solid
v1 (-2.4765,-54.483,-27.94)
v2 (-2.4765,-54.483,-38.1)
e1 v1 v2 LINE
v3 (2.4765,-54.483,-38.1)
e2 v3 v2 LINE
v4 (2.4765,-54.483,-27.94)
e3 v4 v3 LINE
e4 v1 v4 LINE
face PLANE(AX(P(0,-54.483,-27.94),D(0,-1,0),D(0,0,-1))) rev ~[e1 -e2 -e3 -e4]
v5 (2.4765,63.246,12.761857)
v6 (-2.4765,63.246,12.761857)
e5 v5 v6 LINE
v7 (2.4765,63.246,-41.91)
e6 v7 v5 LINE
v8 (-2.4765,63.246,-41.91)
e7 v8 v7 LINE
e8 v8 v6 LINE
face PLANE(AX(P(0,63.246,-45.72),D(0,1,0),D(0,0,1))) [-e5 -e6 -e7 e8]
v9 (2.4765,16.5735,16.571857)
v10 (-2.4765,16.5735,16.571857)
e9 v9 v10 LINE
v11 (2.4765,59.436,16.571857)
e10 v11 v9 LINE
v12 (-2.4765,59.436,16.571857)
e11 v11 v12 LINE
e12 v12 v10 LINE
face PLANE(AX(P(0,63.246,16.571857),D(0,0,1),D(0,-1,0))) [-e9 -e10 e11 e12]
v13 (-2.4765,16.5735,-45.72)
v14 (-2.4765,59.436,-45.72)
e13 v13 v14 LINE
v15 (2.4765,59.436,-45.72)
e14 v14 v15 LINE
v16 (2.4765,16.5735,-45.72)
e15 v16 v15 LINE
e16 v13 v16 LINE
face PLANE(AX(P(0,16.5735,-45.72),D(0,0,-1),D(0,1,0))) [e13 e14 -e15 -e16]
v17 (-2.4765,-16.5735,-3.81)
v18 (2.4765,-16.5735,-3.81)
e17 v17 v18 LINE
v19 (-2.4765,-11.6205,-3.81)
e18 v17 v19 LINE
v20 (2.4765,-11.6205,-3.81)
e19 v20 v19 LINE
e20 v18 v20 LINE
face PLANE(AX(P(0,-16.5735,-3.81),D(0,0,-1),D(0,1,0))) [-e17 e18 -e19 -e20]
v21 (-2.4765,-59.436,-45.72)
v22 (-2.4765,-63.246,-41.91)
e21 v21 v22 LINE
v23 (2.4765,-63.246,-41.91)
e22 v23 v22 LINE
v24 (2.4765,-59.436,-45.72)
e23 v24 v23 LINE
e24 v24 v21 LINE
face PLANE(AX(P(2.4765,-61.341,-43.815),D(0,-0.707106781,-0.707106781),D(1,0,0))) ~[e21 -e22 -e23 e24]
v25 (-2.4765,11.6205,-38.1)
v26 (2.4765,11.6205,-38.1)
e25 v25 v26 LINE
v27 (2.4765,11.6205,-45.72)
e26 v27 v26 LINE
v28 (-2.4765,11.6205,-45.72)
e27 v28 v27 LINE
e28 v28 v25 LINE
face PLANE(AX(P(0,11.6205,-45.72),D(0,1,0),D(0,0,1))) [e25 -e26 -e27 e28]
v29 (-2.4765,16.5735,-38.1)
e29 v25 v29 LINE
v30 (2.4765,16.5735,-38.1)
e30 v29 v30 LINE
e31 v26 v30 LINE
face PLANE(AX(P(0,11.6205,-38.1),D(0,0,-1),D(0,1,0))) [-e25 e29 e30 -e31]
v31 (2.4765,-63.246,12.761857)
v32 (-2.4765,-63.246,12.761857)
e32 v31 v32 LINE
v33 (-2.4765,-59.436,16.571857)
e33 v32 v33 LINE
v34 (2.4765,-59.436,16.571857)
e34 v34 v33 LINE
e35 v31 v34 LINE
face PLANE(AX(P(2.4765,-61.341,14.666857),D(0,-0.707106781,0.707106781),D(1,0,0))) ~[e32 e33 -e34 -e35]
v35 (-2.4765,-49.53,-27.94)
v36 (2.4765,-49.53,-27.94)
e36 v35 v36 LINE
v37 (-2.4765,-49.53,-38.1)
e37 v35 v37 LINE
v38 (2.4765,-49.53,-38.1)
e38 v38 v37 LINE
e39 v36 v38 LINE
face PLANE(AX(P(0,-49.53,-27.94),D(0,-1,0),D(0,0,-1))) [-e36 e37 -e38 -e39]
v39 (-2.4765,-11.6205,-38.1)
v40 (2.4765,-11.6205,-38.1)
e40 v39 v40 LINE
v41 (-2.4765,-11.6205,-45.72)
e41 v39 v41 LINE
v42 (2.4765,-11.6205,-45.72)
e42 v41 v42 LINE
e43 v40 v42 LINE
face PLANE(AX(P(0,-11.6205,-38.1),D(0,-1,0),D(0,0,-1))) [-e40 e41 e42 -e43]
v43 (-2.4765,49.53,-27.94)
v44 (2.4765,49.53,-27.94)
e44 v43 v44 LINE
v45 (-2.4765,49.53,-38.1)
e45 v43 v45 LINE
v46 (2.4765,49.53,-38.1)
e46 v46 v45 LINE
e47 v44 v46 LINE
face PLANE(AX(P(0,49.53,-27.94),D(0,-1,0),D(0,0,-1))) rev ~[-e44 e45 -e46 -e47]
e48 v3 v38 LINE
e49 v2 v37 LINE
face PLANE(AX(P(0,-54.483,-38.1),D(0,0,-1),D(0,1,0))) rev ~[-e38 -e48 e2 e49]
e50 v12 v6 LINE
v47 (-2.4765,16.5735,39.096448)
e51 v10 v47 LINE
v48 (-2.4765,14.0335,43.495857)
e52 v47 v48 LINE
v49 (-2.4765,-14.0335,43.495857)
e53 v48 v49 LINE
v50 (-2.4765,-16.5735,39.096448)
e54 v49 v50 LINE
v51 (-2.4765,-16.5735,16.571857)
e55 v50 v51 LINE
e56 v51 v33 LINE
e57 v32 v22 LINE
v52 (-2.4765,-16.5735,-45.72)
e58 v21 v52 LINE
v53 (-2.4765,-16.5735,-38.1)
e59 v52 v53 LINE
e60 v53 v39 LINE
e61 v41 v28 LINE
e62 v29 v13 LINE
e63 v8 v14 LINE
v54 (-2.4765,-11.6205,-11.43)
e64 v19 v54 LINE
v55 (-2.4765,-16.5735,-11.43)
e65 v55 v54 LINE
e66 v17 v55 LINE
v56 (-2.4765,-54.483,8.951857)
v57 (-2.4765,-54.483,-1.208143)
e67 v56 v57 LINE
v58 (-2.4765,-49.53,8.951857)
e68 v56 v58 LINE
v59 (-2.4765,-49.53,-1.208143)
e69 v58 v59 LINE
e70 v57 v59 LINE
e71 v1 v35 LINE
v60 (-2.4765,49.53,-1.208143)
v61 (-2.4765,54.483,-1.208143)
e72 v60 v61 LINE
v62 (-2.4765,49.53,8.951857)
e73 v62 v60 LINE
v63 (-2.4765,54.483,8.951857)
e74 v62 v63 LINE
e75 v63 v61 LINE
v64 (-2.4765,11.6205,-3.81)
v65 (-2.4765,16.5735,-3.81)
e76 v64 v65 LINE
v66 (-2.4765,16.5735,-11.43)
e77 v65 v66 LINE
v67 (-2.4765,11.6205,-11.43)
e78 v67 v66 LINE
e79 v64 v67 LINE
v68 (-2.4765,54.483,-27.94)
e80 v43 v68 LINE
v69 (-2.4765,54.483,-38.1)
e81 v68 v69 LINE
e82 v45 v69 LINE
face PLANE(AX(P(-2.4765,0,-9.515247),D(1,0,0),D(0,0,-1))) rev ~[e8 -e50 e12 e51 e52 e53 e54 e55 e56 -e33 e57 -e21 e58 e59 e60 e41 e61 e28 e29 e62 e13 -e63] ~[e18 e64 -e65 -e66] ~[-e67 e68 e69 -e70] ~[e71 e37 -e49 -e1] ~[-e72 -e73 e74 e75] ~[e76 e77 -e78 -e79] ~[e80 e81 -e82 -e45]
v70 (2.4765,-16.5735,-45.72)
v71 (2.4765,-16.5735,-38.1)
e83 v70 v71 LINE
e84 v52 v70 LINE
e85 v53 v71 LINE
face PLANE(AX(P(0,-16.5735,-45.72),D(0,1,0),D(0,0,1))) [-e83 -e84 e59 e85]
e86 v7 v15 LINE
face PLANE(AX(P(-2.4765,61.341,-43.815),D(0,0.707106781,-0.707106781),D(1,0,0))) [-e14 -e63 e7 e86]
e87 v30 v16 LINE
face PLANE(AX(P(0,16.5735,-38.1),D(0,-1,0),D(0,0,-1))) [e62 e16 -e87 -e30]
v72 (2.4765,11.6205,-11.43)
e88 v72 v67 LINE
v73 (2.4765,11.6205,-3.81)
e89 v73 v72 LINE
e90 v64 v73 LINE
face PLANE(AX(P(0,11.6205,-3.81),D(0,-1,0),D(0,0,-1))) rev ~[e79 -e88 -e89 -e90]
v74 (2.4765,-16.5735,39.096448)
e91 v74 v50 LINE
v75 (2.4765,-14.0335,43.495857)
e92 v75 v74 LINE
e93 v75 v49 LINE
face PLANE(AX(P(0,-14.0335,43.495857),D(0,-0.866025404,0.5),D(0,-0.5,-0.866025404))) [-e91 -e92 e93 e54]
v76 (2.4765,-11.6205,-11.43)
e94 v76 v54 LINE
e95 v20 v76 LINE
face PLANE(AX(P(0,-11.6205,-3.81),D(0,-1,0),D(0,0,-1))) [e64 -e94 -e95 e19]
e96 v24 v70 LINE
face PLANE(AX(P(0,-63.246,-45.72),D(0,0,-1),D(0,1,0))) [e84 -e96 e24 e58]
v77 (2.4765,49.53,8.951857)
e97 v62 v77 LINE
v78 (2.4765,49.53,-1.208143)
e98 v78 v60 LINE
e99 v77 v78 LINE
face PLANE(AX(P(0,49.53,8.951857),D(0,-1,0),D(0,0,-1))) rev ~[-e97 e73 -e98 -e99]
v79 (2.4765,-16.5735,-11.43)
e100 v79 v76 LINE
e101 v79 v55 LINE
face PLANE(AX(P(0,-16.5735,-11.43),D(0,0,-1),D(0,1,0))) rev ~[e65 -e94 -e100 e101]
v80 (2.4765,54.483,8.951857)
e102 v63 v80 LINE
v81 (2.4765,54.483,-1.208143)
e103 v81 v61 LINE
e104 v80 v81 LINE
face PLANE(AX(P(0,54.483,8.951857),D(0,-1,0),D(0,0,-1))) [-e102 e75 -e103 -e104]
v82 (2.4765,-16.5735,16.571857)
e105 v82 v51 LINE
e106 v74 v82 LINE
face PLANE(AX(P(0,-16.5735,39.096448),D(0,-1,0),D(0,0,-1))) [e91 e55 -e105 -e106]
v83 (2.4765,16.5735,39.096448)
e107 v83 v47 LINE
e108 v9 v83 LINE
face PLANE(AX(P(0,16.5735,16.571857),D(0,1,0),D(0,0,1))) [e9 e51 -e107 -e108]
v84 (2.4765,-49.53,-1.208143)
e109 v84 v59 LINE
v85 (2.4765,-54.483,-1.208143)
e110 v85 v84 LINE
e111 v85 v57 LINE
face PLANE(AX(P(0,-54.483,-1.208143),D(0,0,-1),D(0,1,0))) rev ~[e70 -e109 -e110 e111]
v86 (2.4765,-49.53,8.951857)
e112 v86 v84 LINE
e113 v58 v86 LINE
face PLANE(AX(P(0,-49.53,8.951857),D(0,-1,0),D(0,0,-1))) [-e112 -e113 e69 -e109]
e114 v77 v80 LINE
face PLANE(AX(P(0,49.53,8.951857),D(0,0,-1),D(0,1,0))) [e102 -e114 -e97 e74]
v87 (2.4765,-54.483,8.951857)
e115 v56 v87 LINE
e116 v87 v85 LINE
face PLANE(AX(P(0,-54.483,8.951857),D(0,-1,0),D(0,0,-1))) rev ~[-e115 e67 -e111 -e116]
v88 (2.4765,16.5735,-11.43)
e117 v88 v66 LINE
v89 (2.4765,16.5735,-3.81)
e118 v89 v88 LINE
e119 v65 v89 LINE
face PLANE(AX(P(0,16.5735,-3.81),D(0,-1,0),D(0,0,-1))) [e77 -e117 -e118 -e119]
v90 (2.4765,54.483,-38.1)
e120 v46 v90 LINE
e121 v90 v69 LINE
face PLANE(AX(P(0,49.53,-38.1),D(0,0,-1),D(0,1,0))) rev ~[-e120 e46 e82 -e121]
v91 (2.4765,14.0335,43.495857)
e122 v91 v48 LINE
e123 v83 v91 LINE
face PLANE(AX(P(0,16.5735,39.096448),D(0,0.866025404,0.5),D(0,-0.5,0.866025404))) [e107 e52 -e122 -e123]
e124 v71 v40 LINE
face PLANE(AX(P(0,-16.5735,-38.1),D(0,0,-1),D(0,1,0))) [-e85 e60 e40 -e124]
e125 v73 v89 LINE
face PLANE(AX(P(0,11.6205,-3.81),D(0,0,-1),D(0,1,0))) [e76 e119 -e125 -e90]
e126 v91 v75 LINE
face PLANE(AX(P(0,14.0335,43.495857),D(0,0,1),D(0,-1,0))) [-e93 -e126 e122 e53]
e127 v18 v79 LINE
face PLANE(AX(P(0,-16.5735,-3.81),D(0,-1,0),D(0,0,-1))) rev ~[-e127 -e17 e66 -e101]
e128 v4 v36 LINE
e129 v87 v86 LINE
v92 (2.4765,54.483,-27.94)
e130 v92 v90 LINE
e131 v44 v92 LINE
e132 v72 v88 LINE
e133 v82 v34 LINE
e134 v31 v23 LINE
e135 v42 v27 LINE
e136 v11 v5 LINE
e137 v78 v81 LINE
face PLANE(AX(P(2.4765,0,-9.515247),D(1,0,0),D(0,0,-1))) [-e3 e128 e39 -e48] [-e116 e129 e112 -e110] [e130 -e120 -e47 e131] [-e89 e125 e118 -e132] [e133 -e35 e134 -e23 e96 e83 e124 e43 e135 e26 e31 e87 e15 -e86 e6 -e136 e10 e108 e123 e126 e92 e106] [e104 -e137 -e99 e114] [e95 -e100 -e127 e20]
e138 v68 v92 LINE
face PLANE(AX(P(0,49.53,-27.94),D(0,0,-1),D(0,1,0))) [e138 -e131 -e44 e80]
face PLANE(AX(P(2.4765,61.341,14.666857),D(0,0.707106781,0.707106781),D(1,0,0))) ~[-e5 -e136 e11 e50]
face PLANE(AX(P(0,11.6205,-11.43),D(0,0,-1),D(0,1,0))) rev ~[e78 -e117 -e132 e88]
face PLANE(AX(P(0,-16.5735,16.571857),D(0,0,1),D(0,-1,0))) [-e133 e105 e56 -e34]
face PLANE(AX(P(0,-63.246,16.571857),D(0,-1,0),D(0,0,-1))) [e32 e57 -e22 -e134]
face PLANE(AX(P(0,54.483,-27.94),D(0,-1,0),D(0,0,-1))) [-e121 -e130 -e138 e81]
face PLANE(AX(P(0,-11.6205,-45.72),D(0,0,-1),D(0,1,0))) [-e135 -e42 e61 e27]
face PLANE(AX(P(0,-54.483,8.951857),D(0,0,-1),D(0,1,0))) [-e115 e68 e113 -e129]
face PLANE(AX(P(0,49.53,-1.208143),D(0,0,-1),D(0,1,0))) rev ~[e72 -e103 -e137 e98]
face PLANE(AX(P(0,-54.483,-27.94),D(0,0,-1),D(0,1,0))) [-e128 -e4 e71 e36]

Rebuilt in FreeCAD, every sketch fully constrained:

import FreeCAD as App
import Part
import Sketcher

V = App.Vector
Q = App.Units.Quantity


def edges_at(feature, points):
    """Names of the edges that pass closest to the given points."""
    edges = feature.Shape.Edges
    near = lambda p: min(range(len(edges)), key=lambda i: edges[i].distToShape(Part.Vertex(*p))[0])
    return sorted({f"Edge{near(p) + 1}" for p in points})


def add_polygon(sketch, points):
    """Adds a closed chain of lines whose ends are joined by coincident constraints."""
    first, n = sketch.GeometryCount, len(points)
    for a, b in zip(points, points[1:] + points[:1]):
        sketch.addGeometry(Part.LineSegment(App.Vector(*a, 0), App.Vector(*b, 0)), False)
    for i in range(n):
        sketch.addConstraint(Sketcher.Constraint("Coincident", first + i, 2, first + (i + 1) % n, 1))

doc = App.newDocument("Part")
body = doc.addObject("PartDesign::Body", "Body")

# Sketch on YZ plane
sketch1 = doc.addObject("Sketcher::SketchObject", "Sketch")
body.addObject(sketch1)
sketch1.AttachmentSupport = (doc.YZ_Plane, [""])
sketch1.MapMode = "FlatFace"
add_polygon(sketch1, [(-63.2, -45.7), (-16.6, -45.7), (-16.6, -38.1), (-11.6, -38.1), (-11.6, -45.7), (11.6, -45.7), (11.6, -38.1), (16.6, -38.1), (16.6, -45.7), (63.2, -45.7), (63.2, 16.6), (16.6, 16.6), (16.6, 39.1), (14, 43.5), (-14, 43.5), (-16.6, 39.1), (-16.6, 16.6), (-63.2, 16.6)])  # lines 0-17
add_polygon(sketch1, [(-54.5, -1.2), (-54.5, 9), (-49.5, 9), (-49.5, -1.2)])  # lines 18-21
add_polygon(sketch1, [(-16.6, -11.4), (-16.6, -3.8), (-11.6, -3.8), (-11.6, -11.4)])  # lines 22-25
add_polygon(sketch1, [(-54.5, -38.1), (-54.5, -27.9), (-49.5, -27.9), (-49.5, -38.1)])  # lines 26-29
add_polygon(sketch1, [(11.6, -11.4), (11.6, -3.8), (16.6, -3.8), (16.6, -11.4)])  # lines 30-33
add_polygon(sketch1, [(49.5, -1.2), (49.5, 9), (54.5, 9), (54.5, -1.2)])  # lines 34-37
add_polygon(sketch1, [(49.5, -38.1), (49.5, -27.9), (54.5, -27.9), (54.5, -38.1)])  # lines 38-41
sketch1.addConstraint([
    Sketcher.Constraint("Horizontal", 0),
    Sketcher.Constraint("Vertical", 1),
    Sketcher.Constraint("Horizontal", 2),
    Sketcher.Constraint("Vertical", 3),
    Sketcher.Constraint("Horizontal", 4),
    Sketcher.Constraint("Vertical", 5),
    Sketcher.Constraint("Horizontal", 6),
    Sketcher.Constraint("Vertical", 7),
    Sketcher.Constraint("Horizontal", 8),
    Sketcher.Constraint("Vertical", 9),
    Sketcher.Constraint("Horizontal", 10),
    Sketcher.Constraint("Vertical", 11),
    Sketcher.Constraint("Horizontal", 13),
    Sketcher.Constraint("Vertical", 15),
    Sketcher.Constraint("Horizontal", 16),
    Sketcher.Constraint("Vertical", 17),
    Sketcher.Constraint("Vertical", 18),
    Sketcher.Constraint("Horizontal", 19),
    Sketcher.Constraint("Vertical", 20),
    Sketcher.Constraint("Horizontal", 21),
    Sketcher.Constraint("Vertical", 22),
    Sketcher.Constraint("Horizontal", 23),
    Sketcher.Constraint("Vertical", 24),
    Sketcher.Constraint("Horizontal", 25),
    Sketcher.Constraint("Vertical", 26),
    Sketcher.Constraint("Horizontal", 27),
    Sketcher.Constraint("Vertical", 28),
    Sketcher.Constraint("Horizontal", 29),
    Sketcher.Constraint("Vertical", 30),
    Sketcher.Constraint("Horizontal", 31),
    Sketcher.Constraint("Vertical", 32),
    Sketcher.Constraint("Horizontal", 33),
    Sketcher.Constraint("Vertical", 34),
    Sketcher.Constraint("Horizontal", 35),
    Sketcher.Constraint("Vertical", 36),
    Sketcher.Constraint("Horizontal", 37),
    Sketcher.Constraint("Vertical", 38),
    Sketcher.Constraint("Horizontal", 39),
    Sketcher.Constraint("Vertical", 40),
    Sketcher.Constraint("Horizontal", 41),
    Sketcher.Constraint("Symmetric", 2, 2, 5, 2, -2),
    Sketcher.Constraint("Symmetric", 0, 2, 7, 2, -2),
    Sketcher.Constraint("Symmetric", 11, 2, 14, 2, -2),
    Sketcher.Constraint("Symmetric", 9, 2, 16, 2, -2),
    Sketcher.Constraint("Symmetric", 23, 2, 30, 2, -2),
    Sketcher.Constraint("Symmetric", 25, 2, 32, 2, -2),
    Sketcher.Constraint("Symmetric", 19, 2, 34, 2, -2),
    Sketcher.Constraint("Symmetric", 21, 2, 36, 2, -2),
    Sketcher.Constraint("Symmetric", 27, 2, 38, 2, -2),
    Sketcher.Constraint("Symmetric", 29, 2, 40, 2, -2),
    Sketcher.Constraint("Horizontal", 0, 2, 3, 2),
    Sketcher.Constraint("Horizontal", 6, 2, 28, 2),
    Sketcher.Constraint("Vertical", 7, 2, 10, 2),
    Sketcher.Constraint("Vertical", 15, 2, 22, 2),
    Sketcher.Constraint("Vertical", 3, 2, 23, 2),
    Sketcher.Constraint("Vertical", 21, 2, 26, 2),
    Sketcher.Constraint("Vertical", 20, 2, 27, 2),
    Sketcher.Constraint("Equal", 6, 19),
    Sketcher.Constraint("Equal", 7, 22),
    Sketcher.Constraint("Equal", 20, 26),
    Sketcher.Constraint("Equal", 12, 14),
    Sketcher.Constraint("DistanceY", 1, 1, 1, 2, Q("0.3 in")),
    Sketcher.Constraint("DistanceY", 18, 1, 18, 2, Q("0.4 in")),
    Sketcher.Constraint("Angle", 12, Q("120 deg")),
    Sketcher.Constraint("Distance", 12, Q("0.2 in")),
    Sketcher.Constraint("DistanceY", 0, 2, -1, 1, Q("1.8 in")),
    Sketcher.Constraint("DistanceY", 18, 2, 16, 2, Q("0.3 in")),
    Sketcher.Constraint("DistanceX", 2, 1, 2, 2, Q("0.195 in")),
    Sketcher.Constraint("DistanceX", 4, 1, 4, 2, Q("0.915 in")),
    Sketcher.Constraint("DistanceX", -1, 1, 8, 2, Q("2.49 in")),
    Sketcher.Constraint("DistanceX", 19, 2, -1, 1, Q("1.95 in")),
    Sketcher.Constraint("DistanceY", 22, 2, -1, 1, Q("0.15 in")),
    Sketcher.Constraint("DistanceY", 10, 2, 12, 2, Q("1.06 in")),
    Sketcher.Constraint("DistanceY", 9, 1, 9, 2, Q("62.291857 mm")),
])
pad1 = doc.addObject("PartDesign::Pad", "Pad")
body.addObject(pad1)
pad1.Profile = sketch1
pad1.Length = Q("0.195 in")
pad1.Midplane = True
doc.recompute()

chamfer = doc.addObject("PartDesign::Chamfer", "Chamfer")
body.addObject(chamfer)
chamfer.Base = (pad1, edges_at(pad1, [
    (0, -63.246, -45.72),
    (0, -63.246, 16.572),
    (0, 63.246, 16.572),
    (0, 63.246, -45.72),
]))
chamfer.Size = Q("0.15 in")

doc.recompute()
